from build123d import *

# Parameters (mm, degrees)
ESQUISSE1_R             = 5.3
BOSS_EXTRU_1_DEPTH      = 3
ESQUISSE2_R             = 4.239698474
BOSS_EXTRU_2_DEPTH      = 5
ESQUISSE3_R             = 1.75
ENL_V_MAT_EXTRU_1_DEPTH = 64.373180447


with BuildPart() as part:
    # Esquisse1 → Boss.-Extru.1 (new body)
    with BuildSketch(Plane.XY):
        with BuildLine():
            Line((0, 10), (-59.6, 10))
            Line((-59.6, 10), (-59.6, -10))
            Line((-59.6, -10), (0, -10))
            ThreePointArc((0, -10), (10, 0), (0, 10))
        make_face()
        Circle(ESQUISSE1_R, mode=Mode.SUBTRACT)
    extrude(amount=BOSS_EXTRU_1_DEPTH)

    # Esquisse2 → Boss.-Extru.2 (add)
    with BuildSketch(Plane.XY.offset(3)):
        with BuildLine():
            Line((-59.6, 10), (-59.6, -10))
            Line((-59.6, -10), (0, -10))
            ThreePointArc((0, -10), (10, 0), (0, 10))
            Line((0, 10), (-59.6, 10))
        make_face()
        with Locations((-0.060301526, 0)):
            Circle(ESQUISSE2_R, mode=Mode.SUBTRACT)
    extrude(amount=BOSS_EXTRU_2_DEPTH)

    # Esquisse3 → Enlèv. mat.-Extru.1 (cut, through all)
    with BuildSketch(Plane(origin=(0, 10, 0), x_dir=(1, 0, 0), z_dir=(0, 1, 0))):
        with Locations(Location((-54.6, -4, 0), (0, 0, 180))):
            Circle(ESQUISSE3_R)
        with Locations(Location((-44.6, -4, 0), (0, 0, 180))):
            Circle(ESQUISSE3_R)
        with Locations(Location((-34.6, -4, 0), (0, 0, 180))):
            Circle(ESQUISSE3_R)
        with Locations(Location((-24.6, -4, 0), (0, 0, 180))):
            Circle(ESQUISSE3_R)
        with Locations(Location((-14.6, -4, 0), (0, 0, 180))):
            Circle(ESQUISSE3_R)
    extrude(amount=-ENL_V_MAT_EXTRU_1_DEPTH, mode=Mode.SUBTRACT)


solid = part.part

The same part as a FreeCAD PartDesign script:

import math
import FreeCAD as App
import Part
import Sketcher

doc = App.newDocument("Part")
body = doc.addObject("PartDesign::Body", "Body")

# Sketch on XY plane
sketch1 = doc.addObject("Sketcher::SketchObject", "Sketch")
body.addObject(sketch1)
sketch1.AttachmentSupport = (doc.XY_Plane, [""])
sketch1.MapMode = "FlatFace"
sketch1.addGeometry([
    Part.LineSegment(App.Vector(0, 10, 0), App.Vector(-59.6, 10, 0)),  # 0
    Part.LineSegment(App.Vector(-59.6, 10, 0), App.Vector(-59.6, -10, 0)),  # 1
    Part.LineSegment(App.Vector(-59.6, -10, 0), App.Vector(0, -10, 0)),  # 2
    Part.ArcOfCircle(Part.Circle(App.Vector(0, 0, 0), App.Vector(0, 0, 1), 10), math.radians(-90), math.radians(90)),  # 3
    Part.Circle(App.Vector(0, 0, 0), App.Vector(0, 0, 1), 5.3),  # 4
], False)
sketch1.addConstraint([
    Sketcher.Constraint("Coincident", 0, 2, 1, 1),
    Sketcher.Constraint("Coincident", 1, 2, 2, 1),
    Sketcher.Constraint("Tangent", 2, 2, 3, 1),
    Sketcher.Constraint("Tangent", 3, 2, 0, 1),
    Sketcher.Constraint("Horizontal", 0),
    Sketcher.Constraint("Vertical", 1),
    Sketcher.Constraint("Horizontal", 2),
    Sketcher.Constraint("Coincident", 3, 3, -1, 1),
    Sketcher.Constraint("Coincident", 4, 3, -1, 1),
    Sketcher.Constraint("Radius", 3, 10.0),
    Sketcher.Constraint("Diameter", 4, 10.6),
    Sketcher.Constraint("DistanceX", 0, 2, 0, 1, 59.6),
])
pad1 = doc.addObject("PartDesign::Pad", "Pad")
body.addObject(pad1)
pad1.Profile = sketch1
pad1.Length = 3

# Sketch on XY plane
sketch2 = doc.addObject("Sketcher::SketchObject", "Sketch001")
body.addObject(sketch2)
sketch2.AttachmentSupport = (doc.XY_Plane, [""])
sketch2.MapMode = "FlatFace"
sketch2.AttachmentOffset = App.Placement(App.Vector(0, 0, 3), App.Rotation())
sketch2.addGeometry([
    Part.LineSegment(App.Vector(-59.6, 10, 0), App.Vector(-59.6, -10, 0)),  # 0
    Part.LineSegment(App.Vector(-59.6, -10, 0), App.Vector(0, -10, 0)),  # 1
    Part.ArcOfCircle(Part.Circle(App.Vector(0, 0, 0), App.Vector(0, 0, 1), 10), math.radians(-90), math.radians(90)),  # 2
    Part.LineSegment(App.Vector(0, 10, 0), App.Vector(-59.6, 10, 0)),  # 3
    Part.Circle(App.Vector(-0.060302, 0, 0), App.Vector(0, 0, 1), 4.239698),  # 4
], False)
sketch2.addConstraint([
    Sketcher.Constraint("Coincident", 0, 2, 1, 1),
    Sketcher.Constraint("Tangent", 1, 2, 2, 1),
    Sketcher.Constraint("Tangent", 2, 2, 3, 1),
    Sketcher.Constraint("Coincident", 3, 2, 0, 1),
    Sketcher.Constraint("Vertical", 0),
    Sketcher.Constraint("Horizontal", 1),
    Sketcher.Constraint("Horizontal", 3),
    Sketcher.Constraint("Coincident", 2, 3, -1, 1),
    Sketcher.Constraint("PointOnObject", 4, 3, -1),
    Sketcher.Constraint("Radius", 2, 10.0),
    Sketcher.Constraint("DistanceX", 1, 1, 1, 2, 59.6),
    Sketcher.Constraint("Diameter", 4, 8.479397),
    Sketcher.Constraint("DistanceX", 4, 3, -1, 1, 0.060302),
])
pad2 = doc.addObject("PartDesign::Pad", "Pad001")
body.addObject(pad2)
pad2.Profile = sketch2
pad2.Length = 5

# Sketch on XZ plane
sketch3 = doc.addObject("Sketcher::SketchObject", "Sketch002")
body.addObject(sketch3)
sketch3.AttachmentSupport = (doc.XZ_Plane, [""])
sketch3.MapMode = "FlatFace"
sketch3.AttachmentOffset = App.Placement(App.Vector(0, 0, -10), App.Rotation())
sketch3.addGeometry([
    Part.Circle(App.Vector(-54.6, 4, 0), App.Vector(0, 0, 1), 1.75),  # 0
    Part.Circle(App.Vector(-44.6, 4, 0), App.Vector(0, 0, 1), 1.75),  # 1
    Part.Circle(App.Vector(-34.6, 4, 0), App.Vector(0, 0, 1), 1.75),  # 2
    Part.Circle(App.Vector(-24.6, 4, 0), App.Vector(0, 0, 1), 1.75),  # 3
    Part.Circle(App.Vector(-14.6, 4, 0), App.Vector(0, 0, 1), 1.75),  # 4
], False)
sketch3.addConstraint([
    Sketcher.Constraint("Equal", 0, 1),
    Sketcher.Constraint("Equal", 1, 2),
    Sketcher.Constraint("Equal", 2, 3),
    Sketcher.Constraint("Equal", 3, 4),
    Sketcher.Constraint("Horizontal", 0, 3, 1, 3),
    Sketcher.Constraint("Horizontal", 1, 3, 2, 3),
    Sketcher.Constraint("Horizontal", 2, 3, 3, 3),
    Sketcher.Constraint("Horizontal", 3, 3, 4, 3),
    Sketcher.Constraint("Diameter", 0, 3.5),
    Sketcher.Constraint("DistanceY", -1, 1, 0, 3, 4.0),
    Sketcher.Constraint("DistanceX", 0, 3, 1, 3, 10.0),
    Sketcher.Constraint("DistanceX", 1, 3, 2, 3, 10.0),
    Sketcher.Constraint("DistanceX", 2, 3, 3, 3, 10.0),
    Sketcher.Constraint("DistanceX", 3, 3, 4, 3, 10.0),
    Sketcher.Constraint("DistanceX", 0, 3, -1, 1, 54.6),
])
pocket1 = doc.addObject("PartDesign::Pocket", "Pocket")
body.addObject(pocket1)
pocket1.Profile = sketch3
pocket1.Type = "ThroughAll"
pocket1.Reversed = True

doc.recompute()
